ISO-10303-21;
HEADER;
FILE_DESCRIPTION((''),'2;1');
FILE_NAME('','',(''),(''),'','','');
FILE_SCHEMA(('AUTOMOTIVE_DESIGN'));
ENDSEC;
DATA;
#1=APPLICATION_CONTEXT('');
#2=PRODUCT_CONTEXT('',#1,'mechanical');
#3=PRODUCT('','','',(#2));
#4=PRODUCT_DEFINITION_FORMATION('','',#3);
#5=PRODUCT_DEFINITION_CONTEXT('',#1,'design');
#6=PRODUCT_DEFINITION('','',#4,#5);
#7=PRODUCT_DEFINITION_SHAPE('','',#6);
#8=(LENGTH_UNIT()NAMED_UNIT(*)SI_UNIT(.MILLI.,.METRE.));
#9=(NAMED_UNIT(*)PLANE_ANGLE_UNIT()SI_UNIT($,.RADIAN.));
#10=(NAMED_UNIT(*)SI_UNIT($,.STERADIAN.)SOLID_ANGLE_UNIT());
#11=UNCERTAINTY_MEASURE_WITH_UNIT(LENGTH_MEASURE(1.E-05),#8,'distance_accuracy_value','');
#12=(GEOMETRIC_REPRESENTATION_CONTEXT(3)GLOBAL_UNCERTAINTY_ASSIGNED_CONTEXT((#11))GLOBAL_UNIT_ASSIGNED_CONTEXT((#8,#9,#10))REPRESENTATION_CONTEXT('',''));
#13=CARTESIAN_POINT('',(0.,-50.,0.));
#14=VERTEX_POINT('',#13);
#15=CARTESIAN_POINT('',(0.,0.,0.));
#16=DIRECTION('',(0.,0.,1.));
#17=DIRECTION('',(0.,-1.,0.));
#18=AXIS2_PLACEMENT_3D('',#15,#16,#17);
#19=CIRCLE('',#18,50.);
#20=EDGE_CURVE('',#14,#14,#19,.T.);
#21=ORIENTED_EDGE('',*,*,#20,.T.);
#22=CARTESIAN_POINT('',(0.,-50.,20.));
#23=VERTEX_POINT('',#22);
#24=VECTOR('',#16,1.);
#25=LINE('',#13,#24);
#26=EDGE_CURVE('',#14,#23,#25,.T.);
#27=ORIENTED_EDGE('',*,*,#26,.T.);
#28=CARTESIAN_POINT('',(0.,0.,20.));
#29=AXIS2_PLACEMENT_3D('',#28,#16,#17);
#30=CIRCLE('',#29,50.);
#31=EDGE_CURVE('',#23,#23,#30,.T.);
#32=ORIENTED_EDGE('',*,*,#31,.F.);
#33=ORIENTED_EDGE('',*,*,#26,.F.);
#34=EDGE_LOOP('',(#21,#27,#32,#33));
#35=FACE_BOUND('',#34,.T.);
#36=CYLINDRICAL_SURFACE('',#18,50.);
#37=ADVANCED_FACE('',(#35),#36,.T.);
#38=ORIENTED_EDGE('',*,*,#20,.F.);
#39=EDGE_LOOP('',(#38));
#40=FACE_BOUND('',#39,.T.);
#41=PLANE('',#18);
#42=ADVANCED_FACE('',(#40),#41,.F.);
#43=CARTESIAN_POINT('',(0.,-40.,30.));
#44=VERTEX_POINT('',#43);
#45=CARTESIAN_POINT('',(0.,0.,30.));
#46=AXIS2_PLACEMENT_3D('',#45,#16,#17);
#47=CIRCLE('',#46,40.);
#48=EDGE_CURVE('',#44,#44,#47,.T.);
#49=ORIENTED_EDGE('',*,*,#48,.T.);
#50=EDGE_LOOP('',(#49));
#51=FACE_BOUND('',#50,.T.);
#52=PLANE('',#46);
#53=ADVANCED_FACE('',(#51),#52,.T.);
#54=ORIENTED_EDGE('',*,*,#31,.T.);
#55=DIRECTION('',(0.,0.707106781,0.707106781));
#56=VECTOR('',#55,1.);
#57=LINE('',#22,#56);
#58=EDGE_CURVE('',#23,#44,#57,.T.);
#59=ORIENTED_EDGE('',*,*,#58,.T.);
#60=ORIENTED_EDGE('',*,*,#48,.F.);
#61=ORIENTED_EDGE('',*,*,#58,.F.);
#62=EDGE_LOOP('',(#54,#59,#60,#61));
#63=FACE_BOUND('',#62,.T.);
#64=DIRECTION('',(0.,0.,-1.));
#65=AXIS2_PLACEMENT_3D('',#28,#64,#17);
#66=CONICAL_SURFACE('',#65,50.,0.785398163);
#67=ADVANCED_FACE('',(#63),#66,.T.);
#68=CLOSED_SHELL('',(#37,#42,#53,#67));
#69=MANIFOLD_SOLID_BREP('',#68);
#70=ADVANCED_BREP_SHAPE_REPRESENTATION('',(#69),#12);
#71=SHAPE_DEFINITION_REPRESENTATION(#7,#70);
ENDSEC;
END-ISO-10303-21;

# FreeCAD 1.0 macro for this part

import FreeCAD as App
import Part
import Sketcher

V = App.Vector
Q = App.Units.Quantity

doc = App.newDocument("Part")
body = doc.addObject("PartDesign::Body", "Body")

# Sketch on YZ plane
sketch1 = doc.addObject("Sketcher::SketchObject", "Sketch")
body.addObject(sketch1)
sketch1.AttachmentSupport = (doc.YZ_Plane, [""])
sketch1.MapMode = "FlatFace"
sketch1.addGeometry([
    Part.LineSegment(V(-50, 0, 0), V(0, 0, 0)),  # 0
    Part.LineSegment(V(0, 0, 0), V(0, 30, 0)),  # 1
    Part.LineSegment(V(0, 30, 0), V(-40, 30, 0)),  # 2
    Part.LineSegment(V(-40, 30, 0), V(-50, 20, 0)),  # 3
    Part.LineSegment(V(-50, 20, 0), V(-50, 0, 0)),  # 4
], False)
sketch1.addConstraint([
    Sketcher.Constraint("Coincident", 0, 2, 1, 1),
    Sketcher.Constraint("Coincident", 1, 2, 2, 1),
    Sketcher.Constraint("Coincident", 2, 2, 3, 1),
    Sketcher.Constraint("Coincident", 3, 2, 4, 1),
    Sketcher.Constraint("Coincident", 4, 2, 0, 1),
    Sketcher.Constraint("Horizontal", 0),
    Sketcher.Constraint("Vertical", 1),
    Sketcher.Constraint("Horizontal", 2),
    Sketcher.Constraint("Vertical", 4),
    Sketcher.Constraint("Coincident", 0, 2, -1, 1),
    Sketcher.Constraint("DistanceY", 1, 1, 1, 2, Q("30 mm")),
    Sketcher.Constraint("DistanceX", 3, 2, 2, 2, Q("10 mm")),
    Sketcher.Constraint("DistanceY", 3, 2, 2, 2, Q("10 mm")),
    Sketcher.Constraint("DistanceX", 0, 1, 0, 2, Q("50 mm")),
])
revolution = doc.addObject("PartDesign::Revolution", "Revolution")
body.addObject(revolution)
revolution.Profile = sketch1
revolution.ReferenceAxis = (sketch1, ["V_Axis"])
revolution.Angle = 360

doc.recompute()
